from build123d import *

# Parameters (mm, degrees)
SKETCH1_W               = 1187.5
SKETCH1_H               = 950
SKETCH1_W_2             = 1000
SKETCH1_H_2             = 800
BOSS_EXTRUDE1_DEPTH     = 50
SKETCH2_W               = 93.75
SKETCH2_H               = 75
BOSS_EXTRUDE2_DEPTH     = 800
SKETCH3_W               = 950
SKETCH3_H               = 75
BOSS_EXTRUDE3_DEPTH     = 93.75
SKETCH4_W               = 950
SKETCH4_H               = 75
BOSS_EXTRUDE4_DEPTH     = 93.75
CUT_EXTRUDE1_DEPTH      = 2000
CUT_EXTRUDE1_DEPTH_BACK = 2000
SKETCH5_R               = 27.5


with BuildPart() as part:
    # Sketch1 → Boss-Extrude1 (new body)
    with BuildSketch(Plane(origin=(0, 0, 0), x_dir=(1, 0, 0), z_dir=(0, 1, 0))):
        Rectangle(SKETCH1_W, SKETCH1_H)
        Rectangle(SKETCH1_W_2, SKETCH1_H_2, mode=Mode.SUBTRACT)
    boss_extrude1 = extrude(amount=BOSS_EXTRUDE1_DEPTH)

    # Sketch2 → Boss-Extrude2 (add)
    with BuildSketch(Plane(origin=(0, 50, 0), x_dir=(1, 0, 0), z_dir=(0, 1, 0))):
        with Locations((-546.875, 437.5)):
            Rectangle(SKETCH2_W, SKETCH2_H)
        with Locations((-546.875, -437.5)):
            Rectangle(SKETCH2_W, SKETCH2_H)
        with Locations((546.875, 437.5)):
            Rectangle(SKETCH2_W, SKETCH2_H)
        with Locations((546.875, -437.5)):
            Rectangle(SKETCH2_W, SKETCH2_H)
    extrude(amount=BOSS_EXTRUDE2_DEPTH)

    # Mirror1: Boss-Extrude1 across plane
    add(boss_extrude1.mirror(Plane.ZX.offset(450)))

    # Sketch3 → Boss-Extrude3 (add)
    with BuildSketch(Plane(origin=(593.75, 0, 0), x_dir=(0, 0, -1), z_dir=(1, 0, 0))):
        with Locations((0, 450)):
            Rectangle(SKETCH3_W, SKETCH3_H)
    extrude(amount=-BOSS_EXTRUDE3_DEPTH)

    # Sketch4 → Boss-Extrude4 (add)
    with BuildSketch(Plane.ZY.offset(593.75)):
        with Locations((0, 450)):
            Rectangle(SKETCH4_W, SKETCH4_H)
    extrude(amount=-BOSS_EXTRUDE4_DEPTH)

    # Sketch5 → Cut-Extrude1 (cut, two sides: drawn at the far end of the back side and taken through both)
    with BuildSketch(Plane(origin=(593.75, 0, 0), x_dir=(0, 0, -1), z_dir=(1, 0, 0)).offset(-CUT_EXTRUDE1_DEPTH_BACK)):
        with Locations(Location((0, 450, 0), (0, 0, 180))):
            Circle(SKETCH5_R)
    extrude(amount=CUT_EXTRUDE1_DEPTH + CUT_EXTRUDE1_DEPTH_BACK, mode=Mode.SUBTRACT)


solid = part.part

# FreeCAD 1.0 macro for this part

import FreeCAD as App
import Part
import Sketcher


def add_polygon(sketch, points):
    """Adds a closed chain of lines whose ends are joined by coincident constraints."""
    first, n = sketch.GeometryCount, len(points)
    for a, b in zip(points, points[1:] + points[:1]):
        sketch.addGeometry(Part.LineSegment(App.Vector(*a, 0), App.Vector(*b, 0)), False)
    for i in range(n):
        sketch.addConstraint(Sketcher.Constraint("Coincident", first + i, 2, first + (i + 1) % n, 1))

doc = App.newDocument("Part")
body = doc.addObject("PartDesign::Body", "Body")

sketch1 = body.newObject("Sketcher::SketchObject", "Sketch")
sketch1.AttachmentSupport = (doc.getObject("XZ_Plane"), [""])
sketch1.MapMode = "FlatFace"
add_polygon(sketch1, [(-594, -475), (-594, 475), (594, 475), (594, -475)])
add_polygon(sketch1, [(500, 400), (-500, 400), (-500, -400), (500, -400)])
sketch1.addConstraint([
    Sketcher.Constraint("Vertical", 0),
    Sketcher.Constraint("Horizontal", 1),
    Sketcher.Constraint("Vertical", 2),
    Sketcher.Constraint("Horizontal", 3),
    Sketcher.Constraint("Horizontal", 4),
    Sketcher.Constraint("Vertical", 5),
    Sketcher.Constraint("Horizontal", 6),
    Sketcher.Constraint("Vertical", 7),
    Sketcher.Constraint("Symmetric", 0, 2, 2, 2, -1, 1),
    Sketcher.Constraint("Symmetric", 4, 2, 6, 2, -1, 1),
    Sketcher.Constraint("DistanceX", 4, 2, 4, 1, 1000.0),
    Sketcher.Constraint("DistanceY", 0, 1, 0, 2, 950.0),
    Sketcher.Constraint("DistanceY", 5, 2, 5, 1, 800.0),
    Sketcher.Constraint("DistanceX", 1, 1, 1, 2, 1187.5),
])
pad1 = body.newObject("PartDesign::Pad", "Pad")
pad1.Profile = sketch1
pad1.Length = 50
pad1.Reversed = True

sketch2 = body.newObject("Sketcher::SketchObject", "Sketch001")
sketch2.AttachmentSupport = (doc.getObject("XZ_Plane"), [""])
sketch2.MapMode = "FlatFace"
sketch2.AttachmentOffset = App.Placement(App.Vector(0, 0, -50), App.Rotation())
add_polygon(sketch2, [(-594, -475), (-594, -400), (-500, -400), (-500, -475)])
add_polygon(sketch2, [(-594, 400), (-594, 475), (-500, 475), (-500, 400)])
add_polygon(sketch2, [(500, -475), (500, -400), (594, -400), (594, -475)])
add_polygon(sketch2, [(500, 400), (500, 475), (594, 475), (594, 400)])
sketch2.addConstraint([
    Sketcher.Constraint("Vertical", 0),
    Sketcher.Constraint("Horizontal", 1),
    Sketcher.Constraint("Vertical", 2),
    Sketcher.Constraint("Horizontal", 3),
    Sketcher.Constraint("Vertical", 4),
    Sketcher.Constraint("Horizontal", 5),
    Sketcher.Constraint("Vertical", 6),
    Sketcher.Constraint("Horizontal", 7),
    Sketcher.Constraint("Vertical", 8),
    Sketcher.Constraint("Horizontal", 9),
    Sketcher.Constraint("Vertical", 10),
    Sketcher.Constraint("Horizontal", 11),
    Sketcher.Constraint("Vertical", 12),
    Sketcher.Constraint("Horizontal", 13),
    Sketcher.Constraint("Vertical", 14),
    Sketcher.Constraint("Horizontal", 15),
    Sketcher.Constraint("Symmetric", 6, 2, 8, 2, -1, 1),
    Sketcher.Constraint("Symmetric", 4, 2, 10, 2, -1, 1),
    Sketcher.Constraint("Symmetric", 2, 2, 12, 2, -1, 1),
    Sketcher.Constraint("Symmetric", 0, 2, 14, 2, -1, 1),
    Sketcher.Constraint("Symmetric", 1, 2, 8, 2, -2),
    Sketcher.Constraint("Symmetric", 3, 2, 10, 2, -2),
    Sketcher.Constraint("DistanceY", 0, 1, 0, 2, 75.0),
    Sketcher.Constraint("DistanceY", 0, 2, -1, 1, 400.0),
    Sketcher.Constraint("DistanceX", 1, 2, -1, 1, 500.0),
    Sketcher.Constraint("DistanceX", 1, 1, 1, 2, 93.75),
])
pad2 = body.newObject("PartDesign::Pad", "Pad001")
pad2.Profile = sketch2
pad2.Length = 800
pad2.Reversed = True
doc.recompute()

datumplane = body.newObject("PartDesign::Plane", "DatumPlane")
datumplane.AttachmentSupport = (doc.getObject("XZ_Plane"), [""])
datumplane.MapMode = "FlatFace"
datumplane.AttachmentOffset = App.Placement(App.Vector(0, 0, -450), App.Rotation())
mirrored = body.newObject("PartDesign::Mirrored", "Mirrored")
mirrored.Originals = [pad1]
mirrored.MirrorPlane = (datumplane, [""])
body.Tip = mirrored

sketch3 = body.newObject("Sketcher::SketchObject", "Sketch002")
sketch3.AttachmentSupport = (doc.getObject("YZ_Plane"), [""])
sketch3.MapMode = "FlatFace"
sketch3.AttachmentOffset = App.Placement(App.Vector(0, 0, 593.75), App.Rotation())
add_polygon(sketch3, [(488, 475), (412, 475), (412, -475), (488, -475)])
sketch3.addConstraint([
    Sketcher.Constraint("Horizontal", 0),
    Sketcher.Constraint("Vertical", 1),
    Sketcher.Constraint("Horizontal", 2),
    Sketcher.Constraint("Vertical", 3),
    Sketcher.Constraint("DistanceX", 0, 2, 0, 1, 75.0),
    Sketcher.Constraint("DistanceY", 1, 2, 1, 1, 950.0),
    Sketcher.Constraint("DistanceY", -1, 1, 0, 2, 475.0),
    Sketcher.Constraint("DistanceX", -1, 1, 0, 2, 412.5),
])
pad3 = body.newObject("PartDesign::Pad", "Pad002")
pad3.Profile = sketch3
pad3.Length = 93.75
pad3.Reversed = True

sketch4 = body.newObject("Sketcher::SketchObject", "Sketch003")
sketch4.AttachmentSupport = (doc.getObject("YZ_Plane"), [""])
sketch4.MapMode = "FlatFace"
sketch4.AttachmentOffset = App.Placement(App.Vector(0, 0, -593.75), App.Rotation())
add_polygon(sketch4, [(488, -475), (412, -475), (412, 475), (488, 475)])
sketch4.addConstraint([
    Sketcher.Constraint("Horizontal", 0),
    Sketcher.Constraint("Vertical", 1),
    Sketcher.Constraint("Horizontal", 2),
    Sketcher.Constraint("Vertical", 3),
    Sketcher.Constraint("DistanceX", 0, 2, 0, 1, 75.0),
    Sketcher.Constraint("DistanceY", 1, 1, 1, 2, 950.0),
    Sketcher.Constraint("DistanceY", 0, 2, -1, 1, 475.0),
    Sketcher.Constraint("DistanceX", -1, 1, 0, 2, 412.5),
])
pad4 = body.newObject("PartDesign::Pad", "Pad003")
pad4.Profile = sketch4
pad4.Length = 93.75

sketch5 = body.newObject("Sketcher::SketchObject", "Sketch004")
sketch5.AttachmentSupport = (doc.getObject("YZ_Plane"), [""])
sketch5.MapMode = "FlatFace"
sketch5.AttachmentOffset = App.Placement(App.Vector(0, 0, 593.75), App.Rotation())
sketch5.addGeometry(Part.Circle(App.Vector(450, 0, 0), App.Vector(0, 0, 1), 28), False)
sketch5.addConstraint([
    Sketcher.Constraint("PointOnObject", 0, 3, -1),
    Sketcher.Constraint("Diameter", 0, 55.0),
    Sketcher.Constraint("DistanceX", -1, 1, 0, 3, 450.0),
])
pocket1 = body.newObject("PartDesign::Pocket", "Pocket")
pocket1.Profile = sketch5
pocket1.Type = "ThroughAll"
pocket1.Midplane = True

doc.recompute()
